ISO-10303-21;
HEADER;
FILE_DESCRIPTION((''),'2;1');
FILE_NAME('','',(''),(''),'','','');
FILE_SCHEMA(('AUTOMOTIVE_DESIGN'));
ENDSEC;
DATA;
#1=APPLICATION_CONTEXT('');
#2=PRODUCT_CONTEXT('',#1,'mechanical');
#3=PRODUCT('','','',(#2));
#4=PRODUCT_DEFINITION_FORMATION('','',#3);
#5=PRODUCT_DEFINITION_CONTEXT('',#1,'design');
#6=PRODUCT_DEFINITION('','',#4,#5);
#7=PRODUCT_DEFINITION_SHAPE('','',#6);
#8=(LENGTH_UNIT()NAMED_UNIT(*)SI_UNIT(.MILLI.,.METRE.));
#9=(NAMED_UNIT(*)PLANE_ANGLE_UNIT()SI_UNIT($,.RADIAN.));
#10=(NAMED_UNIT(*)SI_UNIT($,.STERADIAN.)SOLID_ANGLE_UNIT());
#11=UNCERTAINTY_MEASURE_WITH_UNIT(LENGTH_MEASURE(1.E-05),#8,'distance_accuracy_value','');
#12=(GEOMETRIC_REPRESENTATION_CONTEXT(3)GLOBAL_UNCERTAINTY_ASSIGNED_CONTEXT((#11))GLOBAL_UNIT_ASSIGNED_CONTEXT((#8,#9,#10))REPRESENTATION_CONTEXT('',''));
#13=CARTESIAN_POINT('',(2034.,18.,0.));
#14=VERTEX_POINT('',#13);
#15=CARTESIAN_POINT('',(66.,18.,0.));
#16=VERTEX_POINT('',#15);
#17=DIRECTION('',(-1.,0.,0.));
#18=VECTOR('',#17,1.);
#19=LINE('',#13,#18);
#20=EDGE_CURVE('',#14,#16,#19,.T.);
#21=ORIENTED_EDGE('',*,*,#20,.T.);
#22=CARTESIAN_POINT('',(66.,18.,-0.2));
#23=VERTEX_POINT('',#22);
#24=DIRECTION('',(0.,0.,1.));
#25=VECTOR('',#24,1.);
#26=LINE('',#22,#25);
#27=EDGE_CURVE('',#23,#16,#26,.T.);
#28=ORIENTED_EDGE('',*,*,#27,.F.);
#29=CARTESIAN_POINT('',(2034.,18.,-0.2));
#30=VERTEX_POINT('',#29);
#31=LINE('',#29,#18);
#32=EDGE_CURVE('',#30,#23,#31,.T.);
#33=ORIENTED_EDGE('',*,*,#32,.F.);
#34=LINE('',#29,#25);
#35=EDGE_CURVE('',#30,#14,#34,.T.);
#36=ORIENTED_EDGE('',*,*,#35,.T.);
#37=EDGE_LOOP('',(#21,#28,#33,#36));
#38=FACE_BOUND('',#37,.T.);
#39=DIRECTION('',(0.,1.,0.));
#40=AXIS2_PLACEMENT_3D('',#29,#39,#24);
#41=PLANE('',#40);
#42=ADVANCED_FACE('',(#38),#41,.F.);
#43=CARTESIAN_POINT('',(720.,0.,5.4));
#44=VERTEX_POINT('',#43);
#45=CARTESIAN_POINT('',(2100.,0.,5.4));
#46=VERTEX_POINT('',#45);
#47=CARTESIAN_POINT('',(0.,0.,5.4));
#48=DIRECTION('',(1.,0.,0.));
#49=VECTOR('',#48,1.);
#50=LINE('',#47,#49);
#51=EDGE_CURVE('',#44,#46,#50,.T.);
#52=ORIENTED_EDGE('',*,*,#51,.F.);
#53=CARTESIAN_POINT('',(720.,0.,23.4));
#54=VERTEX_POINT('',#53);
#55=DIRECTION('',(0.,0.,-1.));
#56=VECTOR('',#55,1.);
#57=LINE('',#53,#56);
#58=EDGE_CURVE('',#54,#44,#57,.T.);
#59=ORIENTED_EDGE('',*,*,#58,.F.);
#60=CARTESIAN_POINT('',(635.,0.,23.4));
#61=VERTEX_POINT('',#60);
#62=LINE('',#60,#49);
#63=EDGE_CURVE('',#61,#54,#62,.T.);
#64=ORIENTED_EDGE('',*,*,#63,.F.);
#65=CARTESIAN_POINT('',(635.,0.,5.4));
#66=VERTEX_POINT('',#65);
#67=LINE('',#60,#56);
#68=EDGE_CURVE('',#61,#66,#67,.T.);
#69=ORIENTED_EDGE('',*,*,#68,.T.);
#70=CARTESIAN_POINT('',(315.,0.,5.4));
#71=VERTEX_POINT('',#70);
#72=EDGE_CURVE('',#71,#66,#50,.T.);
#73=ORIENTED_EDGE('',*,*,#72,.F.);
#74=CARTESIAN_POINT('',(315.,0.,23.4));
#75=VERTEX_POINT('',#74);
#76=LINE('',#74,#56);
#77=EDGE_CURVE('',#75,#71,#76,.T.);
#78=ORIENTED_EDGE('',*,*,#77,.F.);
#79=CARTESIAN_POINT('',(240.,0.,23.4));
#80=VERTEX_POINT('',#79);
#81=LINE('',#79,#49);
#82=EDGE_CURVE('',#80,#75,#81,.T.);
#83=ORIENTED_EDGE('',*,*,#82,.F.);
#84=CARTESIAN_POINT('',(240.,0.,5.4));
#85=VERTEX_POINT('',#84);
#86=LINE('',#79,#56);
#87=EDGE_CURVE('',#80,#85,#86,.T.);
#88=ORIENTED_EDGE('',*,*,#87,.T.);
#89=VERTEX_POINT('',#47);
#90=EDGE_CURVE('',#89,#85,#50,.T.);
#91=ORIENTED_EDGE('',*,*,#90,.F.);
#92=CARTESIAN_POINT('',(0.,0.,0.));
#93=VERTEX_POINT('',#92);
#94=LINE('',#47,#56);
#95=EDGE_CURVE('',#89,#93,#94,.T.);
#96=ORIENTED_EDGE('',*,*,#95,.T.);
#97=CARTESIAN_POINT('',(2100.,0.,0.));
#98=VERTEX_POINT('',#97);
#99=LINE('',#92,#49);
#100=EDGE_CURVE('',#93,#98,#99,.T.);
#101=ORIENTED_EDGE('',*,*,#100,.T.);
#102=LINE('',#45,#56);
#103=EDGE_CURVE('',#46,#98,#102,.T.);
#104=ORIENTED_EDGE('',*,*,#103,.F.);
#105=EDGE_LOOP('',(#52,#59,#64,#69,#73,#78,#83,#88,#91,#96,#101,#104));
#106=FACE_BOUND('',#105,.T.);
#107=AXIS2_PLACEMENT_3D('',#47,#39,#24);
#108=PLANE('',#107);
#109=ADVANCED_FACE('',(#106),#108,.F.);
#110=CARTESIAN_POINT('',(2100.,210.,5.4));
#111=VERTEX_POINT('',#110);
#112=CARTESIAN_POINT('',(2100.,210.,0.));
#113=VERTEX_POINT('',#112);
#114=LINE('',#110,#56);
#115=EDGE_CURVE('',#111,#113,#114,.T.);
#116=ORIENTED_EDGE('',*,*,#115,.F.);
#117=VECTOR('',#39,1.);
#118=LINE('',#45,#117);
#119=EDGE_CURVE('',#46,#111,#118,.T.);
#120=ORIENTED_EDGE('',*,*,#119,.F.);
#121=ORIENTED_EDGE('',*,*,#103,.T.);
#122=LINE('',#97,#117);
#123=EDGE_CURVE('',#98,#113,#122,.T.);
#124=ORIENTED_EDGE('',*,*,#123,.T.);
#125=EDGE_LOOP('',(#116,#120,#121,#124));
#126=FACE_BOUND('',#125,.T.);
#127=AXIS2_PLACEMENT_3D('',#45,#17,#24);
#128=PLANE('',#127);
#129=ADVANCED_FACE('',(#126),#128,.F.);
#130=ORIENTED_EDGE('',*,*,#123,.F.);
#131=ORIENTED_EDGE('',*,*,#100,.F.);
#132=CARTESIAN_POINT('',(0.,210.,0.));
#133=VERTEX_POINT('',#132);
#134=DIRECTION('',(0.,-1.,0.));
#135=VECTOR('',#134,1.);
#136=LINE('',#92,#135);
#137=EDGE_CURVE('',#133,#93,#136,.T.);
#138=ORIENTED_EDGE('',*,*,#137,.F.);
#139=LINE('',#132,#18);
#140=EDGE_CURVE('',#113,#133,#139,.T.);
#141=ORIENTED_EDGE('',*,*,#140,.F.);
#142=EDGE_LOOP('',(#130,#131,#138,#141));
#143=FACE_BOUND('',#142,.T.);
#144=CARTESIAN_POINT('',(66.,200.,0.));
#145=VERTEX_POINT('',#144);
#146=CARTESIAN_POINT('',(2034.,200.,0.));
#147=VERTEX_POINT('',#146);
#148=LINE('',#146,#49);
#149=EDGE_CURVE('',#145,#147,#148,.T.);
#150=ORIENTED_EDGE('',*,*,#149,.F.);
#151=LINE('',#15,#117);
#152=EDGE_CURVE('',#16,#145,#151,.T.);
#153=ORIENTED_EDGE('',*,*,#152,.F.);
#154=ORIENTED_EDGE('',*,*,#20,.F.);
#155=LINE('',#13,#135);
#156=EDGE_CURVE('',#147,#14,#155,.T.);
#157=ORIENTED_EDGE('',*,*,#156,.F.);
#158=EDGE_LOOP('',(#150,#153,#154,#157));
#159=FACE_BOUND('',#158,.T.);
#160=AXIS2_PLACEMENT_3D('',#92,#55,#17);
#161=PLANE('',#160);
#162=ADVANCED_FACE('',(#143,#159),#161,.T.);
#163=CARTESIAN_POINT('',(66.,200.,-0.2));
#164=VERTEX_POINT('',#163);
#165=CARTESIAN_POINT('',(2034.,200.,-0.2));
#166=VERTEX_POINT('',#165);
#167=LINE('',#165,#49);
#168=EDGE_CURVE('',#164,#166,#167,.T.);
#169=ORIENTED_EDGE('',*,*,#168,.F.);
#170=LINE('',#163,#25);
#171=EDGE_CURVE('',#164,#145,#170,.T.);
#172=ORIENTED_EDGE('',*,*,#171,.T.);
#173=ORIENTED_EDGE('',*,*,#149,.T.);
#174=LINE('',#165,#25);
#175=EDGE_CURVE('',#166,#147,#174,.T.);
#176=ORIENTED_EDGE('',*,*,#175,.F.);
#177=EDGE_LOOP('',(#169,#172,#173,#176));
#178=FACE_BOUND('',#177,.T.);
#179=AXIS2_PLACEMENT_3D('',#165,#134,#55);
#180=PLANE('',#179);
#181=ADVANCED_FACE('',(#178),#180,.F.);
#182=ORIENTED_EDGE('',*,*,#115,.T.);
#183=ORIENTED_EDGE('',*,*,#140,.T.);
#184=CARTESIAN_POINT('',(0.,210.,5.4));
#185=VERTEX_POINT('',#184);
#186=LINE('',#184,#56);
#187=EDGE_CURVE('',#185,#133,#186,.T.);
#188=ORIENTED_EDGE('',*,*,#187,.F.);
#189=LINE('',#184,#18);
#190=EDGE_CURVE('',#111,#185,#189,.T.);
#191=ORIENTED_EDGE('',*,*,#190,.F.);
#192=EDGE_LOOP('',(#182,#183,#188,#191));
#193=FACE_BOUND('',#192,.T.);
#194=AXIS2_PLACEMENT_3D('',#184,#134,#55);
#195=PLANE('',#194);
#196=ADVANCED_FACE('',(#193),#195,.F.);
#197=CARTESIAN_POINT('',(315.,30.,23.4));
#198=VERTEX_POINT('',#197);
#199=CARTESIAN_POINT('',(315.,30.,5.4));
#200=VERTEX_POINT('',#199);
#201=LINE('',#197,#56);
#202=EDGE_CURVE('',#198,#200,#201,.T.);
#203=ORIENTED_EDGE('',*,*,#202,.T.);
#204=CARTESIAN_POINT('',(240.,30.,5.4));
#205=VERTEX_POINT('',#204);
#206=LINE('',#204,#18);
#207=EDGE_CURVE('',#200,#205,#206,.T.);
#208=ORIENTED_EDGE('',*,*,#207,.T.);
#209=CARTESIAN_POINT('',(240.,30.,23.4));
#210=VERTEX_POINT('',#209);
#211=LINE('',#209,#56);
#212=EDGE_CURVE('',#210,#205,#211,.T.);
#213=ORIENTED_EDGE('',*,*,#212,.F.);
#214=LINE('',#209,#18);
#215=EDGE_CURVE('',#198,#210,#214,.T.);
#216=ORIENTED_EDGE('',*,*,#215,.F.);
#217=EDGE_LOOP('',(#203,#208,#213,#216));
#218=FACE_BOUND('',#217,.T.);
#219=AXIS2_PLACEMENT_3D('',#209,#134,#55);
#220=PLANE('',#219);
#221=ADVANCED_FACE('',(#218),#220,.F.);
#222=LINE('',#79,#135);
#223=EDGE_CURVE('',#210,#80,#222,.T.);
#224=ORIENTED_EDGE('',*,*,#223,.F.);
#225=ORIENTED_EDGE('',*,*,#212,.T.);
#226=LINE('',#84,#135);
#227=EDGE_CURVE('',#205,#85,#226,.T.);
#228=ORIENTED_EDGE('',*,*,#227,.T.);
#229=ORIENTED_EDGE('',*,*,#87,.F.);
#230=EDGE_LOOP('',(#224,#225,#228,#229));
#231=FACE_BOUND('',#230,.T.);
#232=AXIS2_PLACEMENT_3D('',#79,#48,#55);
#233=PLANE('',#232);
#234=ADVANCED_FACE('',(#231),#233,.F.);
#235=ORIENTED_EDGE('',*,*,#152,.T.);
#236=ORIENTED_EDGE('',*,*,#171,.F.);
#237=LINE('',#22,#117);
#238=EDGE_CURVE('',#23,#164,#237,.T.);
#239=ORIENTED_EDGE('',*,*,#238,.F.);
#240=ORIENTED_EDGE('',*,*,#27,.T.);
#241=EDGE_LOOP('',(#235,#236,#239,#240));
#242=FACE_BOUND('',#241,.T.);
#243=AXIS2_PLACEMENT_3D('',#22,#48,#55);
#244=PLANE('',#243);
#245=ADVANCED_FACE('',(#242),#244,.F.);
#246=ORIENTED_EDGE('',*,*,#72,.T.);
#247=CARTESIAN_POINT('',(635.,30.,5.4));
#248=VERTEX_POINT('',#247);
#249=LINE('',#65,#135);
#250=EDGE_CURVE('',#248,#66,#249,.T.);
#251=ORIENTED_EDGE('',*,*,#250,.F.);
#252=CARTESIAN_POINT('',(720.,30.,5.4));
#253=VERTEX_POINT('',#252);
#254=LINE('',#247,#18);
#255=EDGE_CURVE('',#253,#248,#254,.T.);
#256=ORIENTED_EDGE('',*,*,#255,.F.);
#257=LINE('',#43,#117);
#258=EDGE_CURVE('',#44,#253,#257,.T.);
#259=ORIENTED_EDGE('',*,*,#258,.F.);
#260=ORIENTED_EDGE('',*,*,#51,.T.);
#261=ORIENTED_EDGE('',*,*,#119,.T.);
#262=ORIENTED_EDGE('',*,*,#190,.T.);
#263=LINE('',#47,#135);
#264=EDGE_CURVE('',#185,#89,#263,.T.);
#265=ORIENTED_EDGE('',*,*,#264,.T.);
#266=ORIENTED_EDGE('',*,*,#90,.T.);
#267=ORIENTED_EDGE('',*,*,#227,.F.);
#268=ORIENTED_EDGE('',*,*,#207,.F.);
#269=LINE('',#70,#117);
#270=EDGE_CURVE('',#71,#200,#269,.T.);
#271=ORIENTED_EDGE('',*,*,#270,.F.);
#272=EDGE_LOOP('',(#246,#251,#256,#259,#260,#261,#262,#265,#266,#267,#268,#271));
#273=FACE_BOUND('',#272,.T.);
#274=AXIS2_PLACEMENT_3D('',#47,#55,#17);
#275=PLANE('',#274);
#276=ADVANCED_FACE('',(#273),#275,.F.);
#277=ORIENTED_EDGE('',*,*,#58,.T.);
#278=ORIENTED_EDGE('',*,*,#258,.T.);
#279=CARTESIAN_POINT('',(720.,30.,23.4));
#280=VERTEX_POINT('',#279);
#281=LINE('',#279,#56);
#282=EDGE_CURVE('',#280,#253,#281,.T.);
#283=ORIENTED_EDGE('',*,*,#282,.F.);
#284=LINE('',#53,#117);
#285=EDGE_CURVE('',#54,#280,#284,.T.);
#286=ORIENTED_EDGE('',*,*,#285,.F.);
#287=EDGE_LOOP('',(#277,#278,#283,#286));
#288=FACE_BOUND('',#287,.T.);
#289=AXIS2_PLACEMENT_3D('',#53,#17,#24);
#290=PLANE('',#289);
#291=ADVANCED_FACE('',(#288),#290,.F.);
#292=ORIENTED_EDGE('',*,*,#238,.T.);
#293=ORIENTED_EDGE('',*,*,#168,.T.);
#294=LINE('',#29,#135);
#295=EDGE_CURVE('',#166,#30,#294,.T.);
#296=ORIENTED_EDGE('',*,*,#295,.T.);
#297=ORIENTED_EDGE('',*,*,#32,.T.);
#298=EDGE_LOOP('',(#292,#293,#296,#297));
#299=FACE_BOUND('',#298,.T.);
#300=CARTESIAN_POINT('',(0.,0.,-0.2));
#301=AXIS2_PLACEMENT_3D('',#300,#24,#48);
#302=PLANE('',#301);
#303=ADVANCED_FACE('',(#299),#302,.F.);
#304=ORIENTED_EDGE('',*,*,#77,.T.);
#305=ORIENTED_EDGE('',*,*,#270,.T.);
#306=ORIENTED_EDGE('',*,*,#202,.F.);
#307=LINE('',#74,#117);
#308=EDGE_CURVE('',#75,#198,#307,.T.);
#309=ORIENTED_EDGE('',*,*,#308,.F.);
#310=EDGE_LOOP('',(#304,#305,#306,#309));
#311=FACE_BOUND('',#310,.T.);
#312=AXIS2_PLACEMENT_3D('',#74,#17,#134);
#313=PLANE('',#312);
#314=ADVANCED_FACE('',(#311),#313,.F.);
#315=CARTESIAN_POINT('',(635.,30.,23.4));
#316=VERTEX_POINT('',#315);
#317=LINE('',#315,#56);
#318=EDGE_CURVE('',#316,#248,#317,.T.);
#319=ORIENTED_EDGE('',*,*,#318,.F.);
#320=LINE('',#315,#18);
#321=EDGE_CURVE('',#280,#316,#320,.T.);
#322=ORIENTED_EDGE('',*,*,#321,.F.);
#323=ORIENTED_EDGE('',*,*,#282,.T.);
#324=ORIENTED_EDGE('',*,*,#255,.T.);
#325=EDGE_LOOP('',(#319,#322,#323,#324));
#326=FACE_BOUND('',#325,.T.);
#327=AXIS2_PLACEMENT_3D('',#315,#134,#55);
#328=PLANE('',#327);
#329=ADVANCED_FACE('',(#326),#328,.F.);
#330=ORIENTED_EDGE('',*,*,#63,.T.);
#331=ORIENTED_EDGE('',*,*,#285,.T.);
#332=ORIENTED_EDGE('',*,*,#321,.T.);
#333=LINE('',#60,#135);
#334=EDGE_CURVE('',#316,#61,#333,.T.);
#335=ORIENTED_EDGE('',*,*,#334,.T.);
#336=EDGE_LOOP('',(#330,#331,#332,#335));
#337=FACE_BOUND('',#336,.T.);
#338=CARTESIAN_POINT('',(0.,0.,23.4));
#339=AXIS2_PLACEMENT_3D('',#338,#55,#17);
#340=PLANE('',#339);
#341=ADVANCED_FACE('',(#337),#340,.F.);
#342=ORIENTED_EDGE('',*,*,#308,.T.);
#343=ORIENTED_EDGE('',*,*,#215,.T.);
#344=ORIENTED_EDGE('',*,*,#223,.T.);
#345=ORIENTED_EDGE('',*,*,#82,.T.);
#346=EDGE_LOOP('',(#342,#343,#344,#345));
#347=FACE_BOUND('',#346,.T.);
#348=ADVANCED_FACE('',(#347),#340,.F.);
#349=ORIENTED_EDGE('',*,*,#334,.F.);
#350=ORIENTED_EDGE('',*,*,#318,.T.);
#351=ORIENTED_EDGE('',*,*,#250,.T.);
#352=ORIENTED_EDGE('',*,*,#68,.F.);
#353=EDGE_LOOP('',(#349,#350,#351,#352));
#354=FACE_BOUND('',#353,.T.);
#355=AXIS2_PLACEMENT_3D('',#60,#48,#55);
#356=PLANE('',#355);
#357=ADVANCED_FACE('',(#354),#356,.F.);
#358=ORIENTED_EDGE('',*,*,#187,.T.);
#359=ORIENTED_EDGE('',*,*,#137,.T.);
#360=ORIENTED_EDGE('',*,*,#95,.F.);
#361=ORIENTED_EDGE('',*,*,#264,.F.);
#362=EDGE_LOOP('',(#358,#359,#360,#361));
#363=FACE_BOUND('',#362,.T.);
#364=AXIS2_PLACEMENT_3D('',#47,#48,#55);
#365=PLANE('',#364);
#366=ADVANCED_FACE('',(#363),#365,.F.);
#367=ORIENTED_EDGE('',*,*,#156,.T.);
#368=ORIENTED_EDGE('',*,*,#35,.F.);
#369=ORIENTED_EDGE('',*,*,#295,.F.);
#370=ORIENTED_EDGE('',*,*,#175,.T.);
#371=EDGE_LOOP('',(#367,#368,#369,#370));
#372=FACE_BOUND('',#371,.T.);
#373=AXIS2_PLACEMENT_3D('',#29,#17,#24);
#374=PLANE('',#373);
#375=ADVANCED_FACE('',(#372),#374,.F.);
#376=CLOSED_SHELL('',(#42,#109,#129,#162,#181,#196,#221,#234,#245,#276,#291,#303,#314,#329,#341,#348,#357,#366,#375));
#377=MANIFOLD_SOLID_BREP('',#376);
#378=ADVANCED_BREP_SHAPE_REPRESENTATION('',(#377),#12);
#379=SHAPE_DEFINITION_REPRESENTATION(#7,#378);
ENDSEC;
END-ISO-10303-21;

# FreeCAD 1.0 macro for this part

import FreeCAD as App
import Part
import Sketcher
from FreeCAD import Vector

doc = App.newDocument("Part")
body = doc.addObject("PartDesign::Body", "Body")

sketch1 = body.newObject("Sketcher::SketchObject", "Sketch")
sketch1.AttachmentSupport = (doc.getObject("XY_Plane"), [""])
sketch1.MapMode = "FlatFace"
sketch1.addGeometry([
    Part.LineSegment(Vector(0, 210, 0), Vector(0, 0, 0)),
    Part.LineSegment(Vector(0, 0, 0), Vector(2100, 0, 0)),
    Part.LineSegment(Vector(2100, 0, 0), Vector(2100, 210, 0)),
    Part.LineSegment(Vector(2100, 210, 0), Vector(0, 210, 0)),
], False)
sketch1.addConstraint([
    Sketcher.Constraint("Coincident", 0, 2, 1, 1),
    Sketcher.Constraint("Coincident", 1, 2, 2, 1),
    Sketcher.Constraint("Coincident", 2, 2, 3, 1),
    Sketcher.Constraint("Coincident", 3, 2, 0, 1),
    Sketcher.Constraint("Vertical", 0),
    Sketcher.Constraint("Horizontal", 1),
    Sketcher.Constraint("Vertical", 2),
    Sketcher.Constraint("Horizontal", 3),
    Sketcher.Constraint("Coincident", 0, 2, -1, 1),
    Sketcher.Constraint("DistanceX", 1, 1, 1, 2, 2100.0),
    Sketcher.Constraint("DistanceY", 0, 2, 0, 1, 210.0),
])
pad1 = body.newObject("PartDesign::Pad", "Pad")
pad1.Profile = sketch1
pad1.Length = 5.4

sketch2 = body.newObject("Sketcher::SketchObject", "Sketch001")
sketch2.AttachmentSupport = (doc.getObject("XY_Plane"), [""])
sketch2.MapMode = "FlatFace"
sketch2.AttachmentOffset = App.Placement(Vector(0, 0, 5.4), App.Rotation())
sketch2.addGeometry([
    Part.LineSegment(Vector(240, 30, 0), Vector(240, 0, 0)),
    Part.LineSegment(Vector(240, 0, 0), Vector(315, 0, 0)),
    Part.LineSegment(Vector(315, 0, 0), Vector(315, 30, 0)),
    Part.LineSegment(Vector(315, 30, 0), Vector(240, 30, 0)),
    Part.LineSegment(Vector(635, 30, 0), Vector(635, 0, 0)),
    Part.LineSegment(Vector(635, 0, 0), Vector(720, 0, 0)),
    Part.LineSegment(Vector(720, 0, 0), Vector(720, 30, 0)),
    Part.LineSegment(Vector(720, 30, 0), Vector(635, 30, 0)),
], False)
sketch2.addConstraint([
    Sketcher.Constraint("Coincident", 0, 2, 1, 1),
    Sketcher.Constraint("Coincident", 1, 2, 2, 1),
    Sketcher.Constraint("Coincident", 2, 2, 3, 1),
    Sketcher.Constraint("Coincident", 3, 2, 0, 1),
    Sketcher.Constraint("Coincident", 4, 2, 5, 1),
    Sketcher.Constraint("Coincident", 5, 2, 6, 1),
    Sketcher.Constraint("Coincident", 6, 2, 7, 1),
    Sketcher.Constraint("Coincident", 7, 2, 4, 1),
    Sketcher.Constraint("Vertical", 0),
    Sketcher.Constraint("Horizontal", 1),
    Sketcher.Constraint("Vertical", 2),
    Sketcher.Constraint("Horizontal", 3),
    Sketcher.Constraint("Vertical", 4),
    Sketcher.Constraint("Horizontal", 5),
    Sketcher.Constraint("Vertical", 6),
    Sketcher.Constraint("Horizontal", 7),
    Sketcher.Constraint("PointOnObject", 0, 2, -1),
    Sketcher.Constraint("PointOnObject", 4, 2, -1),
    Sketcher.Constraint("Horizontal", 3, 2, 6, 2),
    Sketcher.Constraint("DistanceX", 1, 1, 1, 2, 75.0),
    Sketcher.Constraint("DistanceX", 5, 1, 5, 2, 85.0),
    Sketcher.Constraint("DistanceY", 0, 2, 0, 1, 30.0),
    Sketcher.Constraint("DistanceX", -1, 1, 0, 2, 240.0),
    Sketcher.Constraint("DistanceX", -1, 1, 4, 2, 635.0),
])
pad2 = body.newObject("PartDesign::Pad", "Pad001")
pad2.Profile = sketch2
pad2.Length = 18

sketch3 = body.newObject("Sketcher::SketchObject", "Sketch002")
sketch3.AttachmentSupport = (doc.getObject("XY_Plane"), [""])
sketch3.MapMode = "FlatFace"
sketch3.addGeometry([
    Part.LineSegment(Vector(2034, 200, 0), Vector(2034, 18, 0)),
    Part.LineSegment(Vector(2034, 18, 0), Vector(66, 18, 0)),
    Part.LineSegment(Vector(66, 18, 0), Vector(66, 200, 0)),
    Part.LineSegment(Vector(66, 200, 0), Vector(2034, 200, 0)),
], False)
sketch3.addConstraint([
    Sketcher.Constraint("Coincident", 0, 2, 1, 1),
    Sketcher.Constraint("Coincident", 1, 2, 2, 1),
    Sketcher.Constraint("Coincident", 2, 2, 3, 1),
    Sketcher.Constraint("Coincident", 3, 2, 0, 1),
    Sketcher.Constraint("Vertical", 0),
    Sketcher.Constraint("Horizontal", 1),
    Sketcher.Constraint("Vertical", 2),
    Sketcher.Constraint("Horizontal", 3),
    Sketcher.Constraint("DistanceX", 1, 2, 1, 1, 1968.0),
    Sketcher.Constraint("DistanceY", 0, 2, 0, 1, 182.0),
    Sketcher.Constraint("DistanceX", -1, 1, 0, 2, 2034.0),
    Sketcher.Constraint("DistanceY", -1, 1, 0, 2, 18.0),
])
pad3 = body.newObject("PartDesign::Pad", "Pad002")
pad3.Profile = sketch3
pad3.Length = 0.2
pad3.Reversed = True

doc.recompute()
